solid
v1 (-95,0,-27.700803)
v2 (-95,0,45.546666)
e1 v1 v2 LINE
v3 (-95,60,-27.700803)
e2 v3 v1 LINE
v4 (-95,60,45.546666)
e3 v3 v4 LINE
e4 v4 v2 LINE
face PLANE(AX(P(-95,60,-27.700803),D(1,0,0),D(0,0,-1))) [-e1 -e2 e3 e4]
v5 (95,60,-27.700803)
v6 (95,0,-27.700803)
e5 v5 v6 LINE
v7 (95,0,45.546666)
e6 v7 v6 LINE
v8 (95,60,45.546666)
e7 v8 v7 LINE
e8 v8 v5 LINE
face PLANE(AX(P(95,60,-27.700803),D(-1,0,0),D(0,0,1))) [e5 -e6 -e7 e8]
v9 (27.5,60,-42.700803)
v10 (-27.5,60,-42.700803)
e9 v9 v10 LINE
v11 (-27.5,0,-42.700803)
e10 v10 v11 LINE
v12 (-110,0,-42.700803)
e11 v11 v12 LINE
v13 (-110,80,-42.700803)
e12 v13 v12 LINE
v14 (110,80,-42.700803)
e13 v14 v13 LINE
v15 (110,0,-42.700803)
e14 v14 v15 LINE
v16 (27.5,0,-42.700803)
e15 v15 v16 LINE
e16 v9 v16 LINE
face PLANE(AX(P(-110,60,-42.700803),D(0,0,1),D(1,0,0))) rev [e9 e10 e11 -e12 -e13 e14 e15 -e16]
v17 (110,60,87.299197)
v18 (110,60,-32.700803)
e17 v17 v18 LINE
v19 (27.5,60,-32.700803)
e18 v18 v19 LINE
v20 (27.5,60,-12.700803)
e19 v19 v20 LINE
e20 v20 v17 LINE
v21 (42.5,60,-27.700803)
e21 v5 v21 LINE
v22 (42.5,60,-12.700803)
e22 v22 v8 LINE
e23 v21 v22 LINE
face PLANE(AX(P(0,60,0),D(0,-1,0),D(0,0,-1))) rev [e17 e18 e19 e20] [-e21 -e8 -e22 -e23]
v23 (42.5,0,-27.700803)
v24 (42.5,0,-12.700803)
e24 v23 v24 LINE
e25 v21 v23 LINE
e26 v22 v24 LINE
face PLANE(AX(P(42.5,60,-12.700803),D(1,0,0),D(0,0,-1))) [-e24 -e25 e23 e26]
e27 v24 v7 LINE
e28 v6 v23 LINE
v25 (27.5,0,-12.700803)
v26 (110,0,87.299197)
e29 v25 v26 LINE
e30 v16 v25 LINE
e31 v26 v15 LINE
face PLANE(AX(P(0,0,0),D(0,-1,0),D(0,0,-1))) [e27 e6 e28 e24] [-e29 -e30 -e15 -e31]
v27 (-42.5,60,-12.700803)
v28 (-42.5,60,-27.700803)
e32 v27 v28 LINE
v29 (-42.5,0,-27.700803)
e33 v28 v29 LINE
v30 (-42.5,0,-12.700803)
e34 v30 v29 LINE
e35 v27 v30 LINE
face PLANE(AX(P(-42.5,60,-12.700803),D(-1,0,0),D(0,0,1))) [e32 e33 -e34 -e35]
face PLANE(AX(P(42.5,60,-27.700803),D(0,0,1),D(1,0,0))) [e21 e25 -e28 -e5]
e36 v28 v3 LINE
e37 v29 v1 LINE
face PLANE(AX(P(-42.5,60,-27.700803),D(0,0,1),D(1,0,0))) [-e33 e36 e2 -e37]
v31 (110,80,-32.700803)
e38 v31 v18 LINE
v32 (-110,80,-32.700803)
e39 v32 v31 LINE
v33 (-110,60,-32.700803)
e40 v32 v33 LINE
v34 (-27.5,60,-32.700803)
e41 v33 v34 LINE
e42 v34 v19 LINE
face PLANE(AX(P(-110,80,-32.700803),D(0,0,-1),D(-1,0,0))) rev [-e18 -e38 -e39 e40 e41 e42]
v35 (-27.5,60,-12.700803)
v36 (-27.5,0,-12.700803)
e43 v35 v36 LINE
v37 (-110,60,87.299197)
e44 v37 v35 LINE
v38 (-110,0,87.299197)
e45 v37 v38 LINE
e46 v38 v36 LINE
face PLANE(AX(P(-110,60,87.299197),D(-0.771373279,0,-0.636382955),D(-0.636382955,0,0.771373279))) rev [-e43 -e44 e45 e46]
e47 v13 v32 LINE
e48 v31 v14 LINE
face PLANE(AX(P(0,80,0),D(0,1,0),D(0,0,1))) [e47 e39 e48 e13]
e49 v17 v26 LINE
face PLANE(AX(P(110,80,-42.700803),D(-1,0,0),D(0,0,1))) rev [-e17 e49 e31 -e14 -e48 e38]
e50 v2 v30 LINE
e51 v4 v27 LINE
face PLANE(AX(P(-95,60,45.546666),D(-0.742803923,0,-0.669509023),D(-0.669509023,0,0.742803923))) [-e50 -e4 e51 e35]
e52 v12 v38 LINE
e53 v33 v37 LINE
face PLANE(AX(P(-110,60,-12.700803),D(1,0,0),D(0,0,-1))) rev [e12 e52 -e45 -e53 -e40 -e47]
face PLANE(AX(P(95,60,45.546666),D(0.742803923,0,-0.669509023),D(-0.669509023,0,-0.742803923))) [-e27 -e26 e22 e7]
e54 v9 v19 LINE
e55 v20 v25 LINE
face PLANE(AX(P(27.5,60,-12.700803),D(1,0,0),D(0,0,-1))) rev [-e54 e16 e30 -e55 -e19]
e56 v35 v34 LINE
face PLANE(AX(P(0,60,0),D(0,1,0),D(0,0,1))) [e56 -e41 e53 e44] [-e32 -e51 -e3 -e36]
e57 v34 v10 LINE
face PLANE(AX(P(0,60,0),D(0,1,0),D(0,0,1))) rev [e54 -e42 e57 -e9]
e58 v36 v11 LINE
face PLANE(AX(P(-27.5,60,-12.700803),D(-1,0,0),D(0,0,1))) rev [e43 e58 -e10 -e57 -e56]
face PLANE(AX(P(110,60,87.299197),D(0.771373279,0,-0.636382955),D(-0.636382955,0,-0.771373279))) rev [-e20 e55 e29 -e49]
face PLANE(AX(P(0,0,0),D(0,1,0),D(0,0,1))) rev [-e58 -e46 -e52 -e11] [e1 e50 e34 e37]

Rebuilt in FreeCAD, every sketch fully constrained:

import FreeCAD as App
import Part
import Sketcher

V = App.Vector
Q = App.Units.Quantity


def add_polygon(sketch, points):
    """Adds a closed chain of lines whose ends are joined by coincident constraints."""
    first, n = sketch.GeometryCount, len(points)
    for a, b in zip(points, points[1:] + points[:1]):
        sketch.addGeometry(Part.LineSegment(App.Vector(*a, 0), App.Vector(*b, 0)), False)
    for i in range(n):
        sketch.addConstraint(Sketcher.Constraint("Coincident", first + i, 2, first + (i + 1) % n, 1))

doc = App.newDocument("Part")
body = doc.addObject("PartDesign::Body", "Body")

sketch1 = doc.addObject("Sketcher::SketchObject", "Sketch")
body.addObject(sketch1)
sketch1.AttachmentSupport = (doc.XZ_Plane, [""])
sketch1.MapMode = "FlatFace"
add_polygon(sketch1, [(-110, 87), (-28, -13), (-28, -43), (-110, -43)])
add_polygon(sketch1, [(-95, 46), (-95, -28), (-42, -28), (-42, -13)])
sketch1.addConstraint(Sketcher.Constraint("Vertical", 1))
sketch1.addConstraint(Sketcher.Constraint("Horizontal", 2))
sketch1.addConstraint(Sketcher.Constraint("Vertical", 3))
sketch1.addConstraint(Sketcher.Constraint("Vertical", 4))
sketch1.addConstraint(Sketcher.Constraint("Horizontal", 5))
sketch1.addConstraint(Sketcher.Constraint("Vertical", 6))
sketch1.addConstraint(Sketcher.Constraint("Horizontal", 0, 2, 6, 2))
sketch1.addConstraint(Sketcher.Constraint("DistanceY", 1, 2, 1, 1, Q("30 mm")))
sketch1.addConstraint(Sketcher.Constraint("DistanceY", 3, 1, 3, 2, Q("130 mm")))
sketch1.addConstraint(Sketcher.Constraint("DistanceY", 6, 1, 6, 2, Q("15 mm")))
sketch1.addConstraint(Sketcher.Constraint("DistanceX", 2, 2, 2, 1, Q("82.5 mm")))
sketch1.addConstraint(Sketcher.Constraint("DistanceX", 5, 1, 5, 2, Q("52.5 mm")))
sketch1.addConstraint(Sketcher.Constraint("DistanceX", 2, 2, -1, 1, Q("110 mm")))
sketch1.addConstraint(Sketcher.Constraint("DistanceX", 4, 2, -1, 1, Q("95 mm")))
sketch1.addConstraint(Sketcher.Constraint("DistanceY", 4, 2, 4, 1, Q("73.247469 mm")))
sketch1.addConstraint(Sketcher.Constraint("DistanceY", 0, 2, -1, 1, Q("12.700803 mm")))
pad1 = doc.addObject("PartDesign::Pad", "Pad")
body.addObject(pad1)
pad1.Profile = sketch1
pad1.Length = 60
pad1.Reversed = True
body2 = doc.addObject("PartDesign::Body", "Body001")

sketch2 = doc.addObject("Sketcher::SketchObject", "Sketch001")
body2.addObject(sketch2)
sketch2.AttachmentSupport = (doc.getObject("XZ_Plane001"), [""])
sketch2.MapMode = "FlatFace"
add_polygon(sketch2, [(110, -43), (28, -43), (28, -13), (110, 87)])
add_polygon(sketch2, [(95, 46), (42, -13), (42, -28), (95, -28)])
sketch2.addConstraint(Sketcher.Constraint("Horizontal", 0))
sketch2.addConstraint(Sketcher.Constraint("Vertical", 1))
sketch2.addConstraint(Sketcher.Constraint("Vertical", 3))
sketch2.addConstraint(Sketcher.Constraint("Vertical", 5))
sketch2.addConstraint(Sketcher.Constraint("Horizontal", 6))
sketch2.addConstraint(Sketcher.Constraint("Vertical", 7))
sketch2.addConstraint(Sketcher.Constraint("Horizontal", 1, 2, 4, 2))
sketch2.addConstraint(Sketcher.Constraint("DistanceY", 1, 1, 1, 2, Q("30 mm")))
sketch2.addConstraint(Sketcher.Constraint("DistanceY", 3, 2, 3, 1, Q("130 mm")))
sketch2.addConstraint(Sketcher.Constraint("DistanceY", 5, 2, 5, 1, Q("15 mm")))
sketch2.addConstraint(Sketcher.Constraint("DistanceX", 0, 2, 0, 1, Q("82.5 mm")))
sketch2.addConstraint(Sketcher.Constraint("DistanceX", 6, 1, 6, 2, Q("52.5 mm")))
sketch2.addConstraint(Sketcher.Constraint("DistanceX", -1, 1, 2, 2, Q("110 mm")))
sketch2.addConstraint(Sketcher.Constraint("DistanceX", -1, 1, 6, 2, Q("95 mm")))
sketch2.addConstraint(Sketcher.Constraint("DistanceY", 7, 1, 7, 2, Q("73.247469 mm")))
sketch2.addConstraint(Sketcher.Constraint("DistanceY", 0, 2, -1, 1, Q("42.700803 mm")))
pad2 = doc.addObject("PartDesign::Pad", "Pad001")
body2.addObject(pad2)
pad2.Profile = sketch2
pad2.Length = 60
pad2.Reversed = True
body.AllowCompound = True
doc.recompute()

boolean = doc.addObject("PartDesign::Boolean", "Boolean")
body.addObject(boolean)
boolean.Type = "Fuse"
boolean.addObjects([body2])

sketch3 = doc.addObject("Sketcher::SketchObject", "Sketch002")
body.addObject(sketch3)
sketch3.AttachmentSupport = (doc.XZ_Plane, [""])
sketch3.MapMode = "FlatFace"
sketch3.AttachmentOffset = App.Placement(V(0, 0, -60), App.Rotation())
add_polygon(sketch3, [(-110, -43), (-110, -33), (110, -33), (110, -43)])
sketch3.addConstraint(Sketcher.Constraint("Vertical", 0))
sketch3.addConstraint(Sketcher.Constraint("Horizontal", 1))
sketch3.addConstraint(Sketcher.Constraint("Vertical", 2))
sketch3.addConstraint(Sketcher.Constraint("Horizontal", 3))
sketch3.addConstraint(Sketcher.Constraint("DistanceX", 1, 1, 1, 2, Q("220 mm")))
sketch3.addConstraint(Sketcher.Constraint("DistanceY", 0, 1, 0, 2, Q("10 mm")))
sketch3.addConstraint(Sketcher.Constraint("DistanceX", 0, 2, -1, 1, Q("110 mm")))
sketch3.addConstraint(Sketcher.Constraint("DistanceY", 0, 2, -1, 1, Q("32.700803 mm")))
pad3 = doc.addObject("PartDesign::Pad", "Pad002")
body.addObject(pad3)
pad3.Profile = sketch3
pad3.Length = 20
pad3.Reversed = True

doc.recompute()
